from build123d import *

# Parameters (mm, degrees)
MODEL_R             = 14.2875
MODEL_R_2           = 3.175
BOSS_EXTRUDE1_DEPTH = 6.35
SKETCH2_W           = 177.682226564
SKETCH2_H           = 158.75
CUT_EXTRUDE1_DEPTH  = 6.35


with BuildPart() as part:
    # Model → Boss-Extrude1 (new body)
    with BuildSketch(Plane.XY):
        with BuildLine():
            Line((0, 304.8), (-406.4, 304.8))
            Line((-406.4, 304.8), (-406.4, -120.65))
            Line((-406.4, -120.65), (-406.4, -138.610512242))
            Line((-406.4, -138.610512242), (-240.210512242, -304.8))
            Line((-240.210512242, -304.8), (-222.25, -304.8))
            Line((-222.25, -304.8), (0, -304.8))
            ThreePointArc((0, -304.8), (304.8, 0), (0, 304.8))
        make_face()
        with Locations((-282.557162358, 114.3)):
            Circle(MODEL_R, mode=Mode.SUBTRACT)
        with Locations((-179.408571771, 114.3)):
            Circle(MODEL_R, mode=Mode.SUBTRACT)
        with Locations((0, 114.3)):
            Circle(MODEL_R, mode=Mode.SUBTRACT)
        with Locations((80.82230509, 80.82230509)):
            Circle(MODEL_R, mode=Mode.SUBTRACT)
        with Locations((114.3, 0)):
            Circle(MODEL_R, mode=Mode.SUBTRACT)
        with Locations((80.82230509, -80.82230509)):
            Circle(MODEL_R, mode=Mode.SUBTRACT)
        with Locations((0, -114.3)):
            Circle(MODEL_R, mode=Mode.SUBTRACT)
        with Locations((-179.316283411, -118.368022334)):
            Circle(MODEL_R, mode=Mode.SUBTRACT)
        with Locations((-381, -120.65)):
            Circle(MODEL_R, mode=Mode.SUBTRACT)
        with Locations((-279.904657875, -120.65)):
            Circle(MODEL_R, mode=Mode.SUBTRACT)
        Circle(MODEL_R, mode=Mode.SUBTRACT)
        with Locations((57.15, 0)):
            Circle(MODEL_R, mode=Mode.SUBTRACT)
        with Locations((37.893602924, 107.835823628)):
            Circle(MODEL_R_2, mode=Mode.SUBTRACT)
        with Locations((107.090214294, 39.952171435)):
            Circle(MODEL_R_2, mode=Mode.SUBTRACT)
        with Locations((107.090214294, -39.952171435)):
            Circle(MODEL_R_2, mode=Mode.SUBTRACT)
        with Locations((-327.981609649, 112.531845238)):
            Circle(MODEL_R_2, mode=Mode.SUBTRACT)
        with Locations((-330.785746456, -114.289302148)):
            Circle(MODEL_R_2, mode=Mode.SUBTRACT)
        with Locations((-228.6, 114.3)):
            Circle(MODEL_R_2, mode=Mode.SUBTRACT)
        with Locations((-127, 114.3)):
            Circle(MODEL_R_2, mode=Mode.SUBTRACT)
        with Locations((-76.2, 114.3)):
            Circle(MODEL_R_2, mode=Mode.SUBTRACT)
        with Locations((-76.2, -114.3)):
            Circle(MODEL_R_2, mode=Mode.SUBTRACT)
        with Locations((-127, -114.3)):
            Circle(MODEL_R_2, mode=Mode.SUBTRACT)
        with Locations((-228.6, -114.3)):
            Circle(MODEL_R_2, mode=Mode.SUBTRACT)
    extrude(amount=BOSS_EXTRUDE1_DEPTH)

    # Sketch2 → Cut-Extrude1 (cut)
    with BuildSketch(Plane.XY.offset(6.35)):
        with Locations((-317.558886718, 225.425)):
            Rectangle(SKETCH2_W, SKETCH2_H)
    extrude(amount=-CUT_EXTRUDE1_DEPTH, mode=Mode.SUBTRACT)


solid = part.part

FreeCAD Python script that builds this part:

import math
import FreeCAD as App
import Part
import Sketcher

V = App.Vector
Q = App.Units.Quantity

doc = App.newDocument("Part")
body = doc.addObject("PartDesign::Body", "Body")

sketch1 = body.newObject("Sketcher::SketchObject", "Sketch")
sketch1.AttachmentSupport = (doc.getObject("XY_Plane"), [""])
sketch1.MapMode = "FlatFace"
sketch1.addGeometry([
    Part.LineSegment(V(0, 304.8, 0), V(-406.4, 304.8, 0)),
    Part.LineSegment(V(-406.4, 304.8, 0), V(-406.4, -138.6, 0)),
    Part.LineSegment(V(-406.4, -138.6, 0), V(-240.2, -304.8, 0)),
    Part.LineSegment(V(-240.2, -304.8, 0), V(0, -304.8, 0)),
    Part.ArcOfCircle(Part.Circle(V(0, 0, 0), V(0, 0, 1), 304.8), math.radians(-90), math.radians(90)),
    Part.Circle(V(-381, -120.7, 0), V(0, 0, 1), 14.3),
    Part.Circle(V(-330.8, -114.3, 0), V(0, 0, 1), 3.2),
    Part.Circle(V(-279.9, -120.7, 0), V(0, 0, 1), 14.3),
    Part.Circle(V(-228.6, -114.3, 0), V(0, 0, 1), 3.2),
    Part.Circle(V(-179.3, -118.4, 0), V(0, 0, 1), 14.3),
    Part.Circle(V(-127, -114.3, 0), V(0, 0, 1), 3.2),
    Part.Circle(V(-76.2, -114.3, 0), V(0, 0, 1), 3.2),
    Part.Circle(V(0, -114.3, 0), V(0, 0, 1), 14.3),
    Part.Circle(V(80.8, -80.8, 0), V(0, 0, 1), 14.3),
    Part.Circle(V(107.1, -40, 0), V(0, 0, 1), 3.2),
    Part.Circle(V(-328, 112.5, 0), V(0, 0, 1), 3.2),
    Part.Circle(V(-282.6, 114.3, 0), V(0, 0, 1), 14.3),
    Part.Circle(V(-228.6, 114.3, 0), V(0, 0, 1), 3.2),
    Part.Circle(V(-179.4, 114.3, 0), V(0, 0, 1), 14.3),
    Part.Circle(V(0, 0, 0), V(0, 0, 1), 14.3),
    Part.Circle(V(57.1, 0, 0), V(0, 0, 1), 14.3),
    Part.Circle(V(114.3, 0, 0), V(0, 0, 1), 14.3),
    Part.Circle(V(107.1, 40, 0), V(0, 0, 1), 3.2),
    Part.Circle(V(-127, 114.3, 0), V(0, 0, 1), 3.2),
    Part.Circle(V(-76.2, 114.3, 0), V(0, 0, 1), 3.2),
    Part.Circle(V(80.8, 80.8, 0), V(0, 0, 1), 14.3),
    Part.Circle(V(37.9, 107.8, 0), V(0, 0, 1), 3.2),
    Part.Circle(V(0, 114.3, 0), V(0, 0, 1), 14.3),
], False)
sketch1.addConstraint([
    Sketcher.Constraint("Coincident", 0, 2, 1, 1),
    Sketcher.Constraint("Coincident", 1, 2, 2, 1),
    Sketcher.Constraint("Coincident", 2, 2, 3, 1),
    Sketcher.Constraint("Tangent", 3, 2, 4, 1),
    Sketcher.Constraint("Tangent", 4, 2, 0, 1),
    Sketcher.Constraint("Horizontal", 0),
    Sketcher.Constraint("Vertical", 1),
    Sketcher.Constraint("Horizontal", 3),
    Sketcher.Constraint("Coincident", 4, 3, -1, 1),
    Sketcher.Constraint("Coincident", 19, 3, -1, 1),
    Sketcher.Constraint("Equal", 5, 7),
    Sketcher.Constraint("Equal", 6, 8),
    Sketcher.Constraint("Equal", 7, 9),
    Sketcher.Constraint("Equal", 8, 10),
    Sketcher.Constraint("Equal", 10, 11),
    Sketcher.Constraint("Equal", 9, 12),
    Sketcher.Constraint("Equal", 12, 13),
    Sketcher.Constraint("Equal", 11, 14),
    Sketcher.Constraint("Equal", 14, 15),
    Sketcher.Constraint("Equal", 13, 16),
    Sketcher.Constraint("Equal", 15, 17),
    Sketcher.Constraint("Equal", 16, 18),
    Sketcher.Constraint("Equal", 18, 19),
    Sketcher.Constraint("Equal", 19, 20),
    Sketcher.Constraint("Equal", 20, 21),
    Sketcher.Constraint("Equal", 17, 22),
    Sketcher.Constraint("Equal", 22, 23),
    Sketcher.Constraint("Equal", 23, 24),
    Sketcher.Constraint("Equal", 21, 25),
    Sketcher.Constraint("Equal", 24, 26),
    Sketcher.Constraint("Equal", 25, 27),
    Sketcher.Constraint("Symmetric", 12, 3, 27, 3, -1, 1),
    Sketcher.Constraint("Symmetric", 8, 3, 17, 3, -1),
    Sketcher.Constraint("Symmetric", 14, 3, 22, 3, -1),
    Sketcher.Constraint("Symmetric", 10, 3, 23, 3, -1),
    Sketcher.Constraint("Symmetric", 11, 3, 24, 3, -1),
    Sketcher.Constraint("Symmetric", 13, 3, 25, 3, -1),
    Sketcher.Constraint("PointOnObject", 12, 3, -2),
    Sketcher.Constraint("PointOnObject", 20, 3, -1),
    Sketcher.Constraint("PointOnObject", 21, 3, -1),
    Sketcher.Constraint("Horizontal", 5, 3, 7, 3),
    Sketcher.Constraint("Horizontal", 8, 3, 10, 3),
    Sketcher.Constraint("Horizontal", 10, 3, 11, 3),
    Sketcher.Constraint("Horizontal", 11, 3, 12, 3),
    Sketcher.Constraint("Horizontal", 16, 3, 17, 3),
    Sketcher.Constraint("Horizontal", 17, 3, 18, 3),
    Sketcher.Constraint("Radius", 4, Q("12 in")),
    Sketcher.Constraint("Diameter", 6, Q("0.25 in")),
    Sketcher.Constraint("DistanceX", 0, 2, 0, 1, Q("16 in")),
    Sketcher.Constraint("Diameter", 5, Q("1.125 in")),
    Sketcher.Constraint("DistanceX", 5, 3, -1, 1, Q("15 in")),
    Sketcher.Constraint("DistanceX", 8, 3, -1, 1, Q("9 in")),
    Sketcher.Constraint("DistanceX", 10, 3, -1, 1, Q("5 in")),
    Sketcher.Constraint("DistanceX", 11, 3, -1, 1, Q("3 in")),
    Sketcher.Constraint("Angle", 2, Q("-45 deg")),
    Sketcher.Constraint("DistanceY", 8, 3, 16, 3, Q("9 in")),
    Sketcher.Constraint("DistanceX", -1, 1, 21, 3, Q("4.5 in")),
    Sketcher.Constraint("DistanceY", 5, 3, -1, 1, Q("4.75 in")),
    Sketcher.Constraint("DistanceX", -1, 1, 20, 3, Q("2.25 in")),
    Sketcher.Constraint("DistanceX", 3, 1, 3, 2, 240.210512),
    Sketcher.Constraint("DistanceY", 14, 3, -1, 1, 39.952171),
    Sketcher.Constraint("DistanceX", 15, 3, -1, 1, 327.98161),
    Sketcher.Constraint("DistanceX", 18, 3, -1, 1, 179.408572),
    Sketcher.Constraint("DistanceX", 6, 3, 7, 3, 50.881089),
    Sketcher.Constraint("DistanceY", 9, 3, 6, 3, 4.07872),
    Sketcher.Constraint("DistanceX", 9, 3, 13, 3, 260.138589),
    Sketcher.Constraint("DistanceX", 13, 3, 14, 3, 26.267909),
    Sketcher.Constraint("DistanceX", 15, 3, 7, 3, 48.076952),
    Sketcher.Constraint("DistanceX", 16, 3, 9, 3, 103.240879),
    Sketcher.Constraint("DistanceX", 16, 3, 18, 3, 103.148591),
    Sketcher.Constraint("DistanceY", 25, 3, 26, 3, 27.013519),
    Sketcher.Constraint("DistanceX", 26, 3, 22, 3, 69.196611),
    Sketcher.Constraint("DistanceY", 1, 2, 6, 3, 24.32121),
    Sketcher.Constraint("DistanceY", 13, 3, -1, 1, 80.822305),
    Sketcher.Constraint("DistanceY", -1, 1, 15, 3, 112.531845),
])
pad1 = body.newObject("PartDesign::Pad", "Pad")
pad1.Profile = sketch1
pad1.Length = Q("0.25 in")

sketch2 = body.newObject("Sketcher::SketchObject", "Sketch001")
sketch2.AttachmentSupport = (doc.getObject("XY_Plane"), [""])
sketch2.MapMode = "FlatFace"
sketch2.AttachmentOffset = App.Placement(V(0, 0, 0.25 * 25.4), App.Rotation())
sketch2.addGeometry([
    Part.LineSegment(V(-406, 305, 0), V(-406, 146, 0)),
    Part.LineSegment(V(-406, 146, 0), V(-229, 146, 0)),
    Part.LineSegment(V(-229, 146, 0), V(-229, 305, 0)),
    Part.LineSegment(V(-229, 305, 0), V(-406, 305, 0)),
], False)
sketch2.addConstraint([
    Sketcher.Constraint("Coincident", 0, 2, 1, 1),
    Sketcher.Constraint("Coincident", 1, 2, 2, 1),
    Sketcher.Constraint("Coincident", 2, 2, 3, 1),
    Sketcher.Constraint("Coincident", 3, 2, 0, 1),
    Sketcher.Constraint("Vertical", 0),
    Sketcher.Constraint("Horizontal", 1),
    Sketcher.Constraint("Vertical", 2),
    Sketcher.Constraint("Horizontal", 3),
    Sketcher.Constraint("DistanceX", 0, 2, -1, 1, Q("16 in")),
    Sketcher.Constraint("DistanceY", -1, 1, 2, 2, Q("12 in")),
    Sketcher.Constraint("DistanceY", 0, 2, 0, 1, Q("6.25 in")),
    Sketcher.Constraint("DistanceX", 1, 1, 1, 2, 177.682227),
])
pocket1 = body.newObject("PartDesign::Pocket", "Pocket")
pocket1.Profile = sketch2
pocket1.Length = Q("0.25 in")

doc.recompute()
